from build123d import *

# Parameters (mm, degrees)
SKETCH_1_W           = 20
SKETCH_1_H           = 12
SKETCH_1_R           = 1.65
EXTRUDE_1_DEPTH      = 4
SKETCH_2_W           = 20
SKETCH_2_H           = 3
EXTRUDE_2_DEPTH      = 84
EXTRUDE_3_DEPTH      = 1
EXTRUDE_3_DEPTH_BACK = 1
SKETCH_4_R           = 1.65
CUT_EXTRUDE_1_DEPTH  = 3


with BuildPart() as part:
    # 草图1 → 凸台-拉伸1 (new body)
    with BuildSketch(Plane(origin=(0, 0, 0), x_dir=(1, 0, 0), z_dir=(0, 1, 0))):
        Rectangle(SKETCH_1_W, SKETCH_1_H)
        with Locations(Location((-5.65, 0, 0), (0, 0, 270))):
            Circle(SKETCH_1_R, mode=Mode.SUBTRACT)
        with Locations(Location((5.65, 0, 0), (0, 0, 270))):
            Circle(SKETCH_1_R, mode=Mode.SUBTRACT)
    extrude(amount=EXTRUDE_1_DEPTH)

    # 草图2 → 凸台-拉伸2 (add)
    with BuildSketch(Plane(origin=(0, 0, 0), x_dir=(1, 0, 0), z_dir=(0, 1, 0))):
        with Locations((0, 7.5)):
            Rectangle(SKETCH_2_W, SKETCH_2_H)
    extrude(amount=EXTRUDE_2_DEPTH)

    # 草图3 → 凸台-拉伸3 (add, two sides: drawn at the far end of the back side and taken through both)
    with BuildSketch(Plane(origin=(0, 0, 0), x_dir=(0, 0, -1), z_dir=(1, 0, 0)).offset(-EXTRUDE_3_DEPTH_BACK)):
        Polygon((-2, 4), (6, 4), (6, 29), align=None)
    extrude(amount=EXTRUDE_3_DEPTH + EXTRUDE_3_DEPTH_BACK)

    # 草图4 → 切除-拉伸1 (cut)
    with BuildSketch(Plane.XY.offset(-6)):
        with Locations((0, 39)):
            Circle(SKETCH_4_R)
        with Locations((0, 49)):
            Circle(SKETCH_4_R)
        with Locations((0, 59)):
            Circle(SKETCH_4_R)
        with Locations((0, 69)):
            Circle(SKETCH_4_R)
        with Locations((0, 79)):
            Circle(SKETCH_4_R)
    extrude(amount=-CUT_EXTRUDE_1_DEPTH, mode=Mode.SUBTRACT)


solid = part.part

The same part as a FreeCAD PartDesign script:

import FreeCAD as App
import Part
import Sketcher
from FreeCAD import Vector


def add_polygon(sketch, points):
    """Adds a closed chain of lines whose ends are joined by coincident constraints."""
    first, n = sketch.GeometryCount, len(points)
    for a, b in zip(points, points[1:] + points[:1]):
        sketch.addGeometry(Part.LineSegment(App.Vector(*a, 0), App.Vector(*b, 0)), False)
    for i in range(n):
        sketch.addConstraint(Sketcher.Constraint("Coincident", first + i, 2, first + (i + 1) % n, 1))

doc = App.newDocument("Part")
body = doc.addObject("PartDesign::Body", "Body")

# Sketch on XZ plane
sketch1 = body.newObject("Sketcher::SketchObject", "Sketch")
sketch1.AttachmentSupport = (doc.getObject("XZ_Plane"), [""])
sketch1.MapMode = "FlatFace"
add_polygon(sketch1, [(-10, -6), (-10, 6), (10, 6), (10, -6)])  # lines 0-3
sketch1.addGeometry(Part.Circle(Vector(-5.7, 0, 0), Vector(0, 0, 1), 1.6), False)  # 4
sketch1.addGeometry(Part.Circle(Vector(5.7, 0, 0), Vector(0, 0, 1), 1.6), False)  # 5
sketch1.addConstraint([
    Sketcher.Constraint("Vertical", 0),
    Sketcher.Constraint("Horizontal", 1),
    Sketcher.Constraint("Vertical", 2),
    Sketcher.Constraint("Horizontal", 3),
    Sketcher.Constraint("Equal", 4, 5),
    Sketcher.Constraint("Symmetric", 4, 3, 5, 3, -1, 1),
    Sketcher.Constraint("Symmetric", 0, 2, 2, 2, -1, 1),
    Sketcher.Constraint("PointOnObject", 4, 3, -1),
    Sketcher.Constraint("Diameter", 4, 3.3),
    Sketcher.Constraint("DistanceX", 1, 1, 1, 2, 20.0),
    Sketcher.Constraint("DistanceY", 0, 1, 0, 2, 12.0),
    Sketcher.Constraint("DistanceX", 4, 3, 5, 3, 11.3),
])
pad1 = body.newObject("PartDesign::Pad", "Pad")
pad1.Profile = sketch1
pad1.Length = 4
pad1.Reversed = True

# Sketch on XZ plane
sketch2 = body.newObject("Sketcher::SketchObject", "Sketch001")
sketch2.AttachmentSupport = (doc.getObject("XZ_Plane"), [""])
sketch2.MapMode = "FlatFace"
add_polygon(sketch2, [(-10, -9), (-10, -6), (10, -6), (10, -9)])  # lines 0-3
sketch2.addConstraint([
    Sketcher.Constraint("Vertical", 0),
    Sketcher.Constraint("Horizontal", 1),
    Sketcher.Constraint("Vertical", 2),
    Sketcher.Constraint("Horizontal", 3),
    Sketcher.Constraint("DistanceX", 1, 1, 1, 2, 20.0),
    Sketcher.Constraint("DistanceY", 0, 1, 0, 2, 3.0),
    Sketcher.Constraint("DistanceX", 0, 2, -1, 1, 10.0),
    Sketcher.Constraint("DistanceY", 0, 2, -1, 1, 6.0),
])
pad2 = body.newObject("PartDesign::Pad", "Pad001")
pad2.Profile = sketch2
pad2.Length = 84
pad2.Reversed = True

# Sketch on YZ plane
sketch3 = body.newObject("Sketcher::SketchObject", "Sketch002")
sketch3.AttachmentSupport = (doc.getObject("YZ_Plane"), [""])
sketch3.MapMode = "FlatFace"
add_polygon(sketch3, [(4, 2), (4, -6), (29, -6)])  # lines 0-2
sketch3.addConstraint([
    Sketcher.Constraint("Vertical", 0),
    Sketcher.Constraint("Horizontal", 1),
    Sketcher.Constraint("DistanceX", 1, 1, 1, 2, 25.0),
    Sketcher.Constraint("DistanceY", 0, 2, 0, 1, 8.0),
    Sketcher.Constraint("DistanceX", -1, 1, 0, 2, 4.0),
    Sketcher.Constraint("DistanceY", 0, 2, -1, 1, 6.0),
])
pad3 = body.newObject("PartDesign::Pad", "Pad002")
pad3.Profile = sketch3
pad3.Type = "TwoLengths"
pad3.Length = 1
pad3.Length2 = 1

# Sketch on XY plane
sketch4 = body.newObject("Sketcher::SketchObject", "Sketch003")
sketch4.AttachmentSupport = (doc.getObject("XY_Plane"), [""])
sketch4.MapMode = "FlatFace"
sketch4.AttachmentOffset = App.Placement(Vector(0, 0, -6), App.Rotation())
sketch4.addGeometry([
    Part.Circle(Vector(0, 39, 0), Vector(0, 0, 1), 1.6),  # 0
    Part.Circle(Vector(0, 49, 0), Vector(0, 0, 1), 1.6),  # 1
    Part.Circle(Vector(0, 59, 0), Vector(0, 0, 1), 1.6),  # 2
    Part.Circle(Vector(0, 69, 0), Vector(0, 0, 1), 1.6),  # 3
    Part.Circle(Vector(0, 79, 0), Vector(0, 0, 1), 1.6),  # 4
], False)
sketch4.addConstraint([
    Sketcher.Constraint("Equal", 0, 1),
    Sketcher.Constraint("Equal", 1, 2),
    Sketcher.Constraint("Equal", 2, 3),
    Sketcher.Constraint("Equal", 3, 4),
    Sketcher.Constraint("PointOnObject", 0, 3, -2),
    Sketcher.Constraint("PointOnObject", 1, 3, -2),
    Sketcher.Constraint("PointOnObject", 2, 3, -2),
    Sketcher.Constraint("PointOnObject", 3, 3, -2),
    Sketcher.Constraint("PointOnObject", 4, 3, -2),
    Sketcher.Constraint("Diameter", 0, 3.3),
    Sketcher.Constraint("DistanceY", -1, 1, 0, 3, 39.0),
    Sketcher.Constraint("DistanceY", -1, 1, 1, 3, 49.0),
    Sketcher.Constraint("DistanceY", -1, 1, 2, 3, 59.0),
    Sketcher.Constraint("DistanceY", -1, 1, 3, 3, 69.0),
    Sketcher.Constraint("DistanceY", -1, 1, 4, 3, 79.0),
])
pocket1 = body.newObject("PartDesign::Pocket", "Pocket")
pocket1.Profile = sketch4
pocket1.Length = 3

doc.recompute()
